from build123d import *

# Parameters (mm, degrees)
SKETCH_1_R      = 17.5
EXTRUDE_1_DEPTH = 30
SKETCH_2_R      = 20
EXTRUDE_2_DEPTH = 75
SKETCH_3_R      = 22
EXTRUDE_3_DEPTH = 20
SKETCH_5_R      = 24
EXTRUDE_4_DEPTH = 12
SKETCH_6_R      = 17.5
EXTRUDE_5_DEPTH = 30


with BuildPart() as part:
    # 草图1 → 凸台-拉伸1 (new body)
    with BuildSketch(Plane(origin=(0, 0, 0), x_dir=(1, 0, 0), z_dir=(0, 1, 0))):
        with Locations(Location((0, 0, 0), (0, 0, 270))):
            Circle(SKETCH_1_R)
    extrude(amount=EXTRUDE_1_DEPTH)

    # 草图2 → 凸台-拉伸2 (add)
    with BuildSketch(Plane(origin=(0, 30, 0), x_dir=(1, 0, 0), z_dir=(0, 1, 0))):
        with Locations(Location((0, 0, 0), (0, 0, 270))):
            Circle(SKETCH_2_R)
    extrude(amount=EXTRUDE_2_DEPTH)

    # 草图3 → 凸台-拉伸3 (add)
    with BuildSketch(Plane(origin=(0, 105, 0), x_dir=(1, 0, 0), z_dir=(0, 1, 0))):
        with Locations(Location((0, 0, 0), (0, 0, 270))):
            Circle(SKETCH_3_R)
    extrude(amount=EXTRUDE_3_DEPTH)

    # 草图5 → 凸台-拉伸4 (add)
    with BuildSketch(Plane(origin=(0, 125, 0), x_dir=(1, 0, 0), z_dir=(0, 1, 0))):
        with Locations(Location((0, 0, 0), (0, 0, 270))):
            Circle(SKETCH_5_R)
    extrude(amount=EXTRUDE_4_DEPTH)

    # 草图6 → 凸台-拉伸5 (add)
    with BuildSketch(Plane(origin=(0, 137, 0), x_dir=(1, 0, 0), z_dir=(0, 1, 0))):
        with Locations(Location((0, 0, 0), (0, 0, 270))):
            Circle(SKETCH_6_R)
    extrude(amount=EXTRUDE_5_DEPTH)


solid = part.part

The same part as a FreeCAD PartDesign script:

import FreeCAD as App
import Part
import Sketcher

V = App.Vector
Q = App.Units.Quantity

doc = App.newDocument("Part")
body = doc.addObject("PartDesign::Body", "Body")

sketch1 = doc.addObject("Sketcher::SketchObject", "Sketch")
body.addObject(sketch1)
sketch1.AttachmentSupport = (doc.XZ_Plane, [""])
sketch1.MapMode = "FlatFace"
sketch1.addGeometry(Part.Circle(V(0, 0, 0), V(0, 0, 1), 18), False)
sketch1.addConstraint([
    Sketcher.Constraint("Coincident", 0, 3, -1, 1),
    Sketcher.Constraint("Diameter", 0, Q("35 mm")),
])
pad1 = doc.addObject("PartDesign::Pad", "Pad")
body.addObject(pad1)
pad1.Profile = sketch1
pad1.Length = 30
pad1.Reversed = True

sketch2 = doc.addObject("Sketcher::SketchObject", "Sketch001")
body.addObject(sketch2)
sketch2.AttachmentSupport = (doc.XZ_Plane, [""])
sketch2.MapMode = "FlatFace"
sketch2.AttachmentOffset = App.Placement(V(0, 0, -30), App.Rotation())
sketch2.addGeometry(Part.Circle(V(0, 0, 0), V(0, 0, 1), 20), False)
sketch2.addConstraint([
    Sketcher.Constraint("Coincident", 0, 3, -1, 1),
    Sketcher.Constraint("Diameter", 0, Q("40 mm")),
])
pad2 = doc.addObject("PartDesign::Pad", "Pad001")
body.addObject(pad2)
pad2.Profile = sketch2
pad2.Length = 75
pad2.Reversed = True

sketch3 = doc.addObject("Sketcher::SketchObject", "Sketch002")
body.addObject(sketch3)
sketch3.AttachmentSupport = (doc.XZ_Plane, [""])
sketch3.MapMode = "FlatFace"
sketch3.AttachmentOffset = App.Placement(V(0, 0, -105), App.Rotation())
sketch3.addGeometry(Part.Circle(V(0, 0, 0), V(0, 0, 1), 22), False)
sketch3.addConstraint([
    Sketcher.Constraint("Coincident", 0, 3, -1, 1),
    Sketcher.Constraint("Diameter", 0, Q("44 mm")),
])
pad3 = doc.addObject("PartDesign::Pad", "Pad002")
body.addObject(pad3)
pad3.Profile = sketch3
pad3.Length = 20
pad3.Reversed = True

sketch4 = doc.addObject("Sketcher::SketchObject", "Sketch003")
body.addObject(sketch4)
sketch4.AttachmentSupport = (doc.XZ_Plane, [""])
sketch4.MapMode = "FlatFace"
sketch4.AttachmentOffset = App.Placement(V(0, 0, -125), App.Rotation())
sketch4.addGeometry(Part.Circle(V(0, 0, 0), V(0, 0, 1), 24), False)
sketch4.addConstraint([
    Sketcher.Constraint("Coincident", 0, 3, -1, 1),
    Sketcher.Constraint("Diameter", 0, Q("48 mm")),
])
pad4 = doc.addObject("PartDesign::Pad", "Pad003")
body.addObject(pad4)
pad4.Profile = sketch4
pad4.Length = 12
pad4.Reversed = True

sketch5 = doc.addObject("Sketcher::SketchObject", "Sketch004")
body.addObject(sketch5)
sketch5.AttachmentSupport = (doc.XZ_Plane, [""])
sketch5.MapMode = "FlatFace"
sketch5.AttachmentOffset = App.Placement(V(0, 0, -137), App.Rotation())
sketch5.addGeometry(Part.Circle(V(0, 0, 0), V(0, 0, 1), 18), False)
sketch5.addConstraint([
    Sketcher.Constraint("Coincident", 0, 3, -1, 1),
    Sketcher.Constraint("Diameter", 0, Q("35 mm")),
])
pad5 = doc.addObject("PartDesign::Pad", "Pad004")
body.addObject(pad5)
pad5.Profile = sketch5
pad5.Length = 30
pad5.Reversed = True

doc.recompute()
